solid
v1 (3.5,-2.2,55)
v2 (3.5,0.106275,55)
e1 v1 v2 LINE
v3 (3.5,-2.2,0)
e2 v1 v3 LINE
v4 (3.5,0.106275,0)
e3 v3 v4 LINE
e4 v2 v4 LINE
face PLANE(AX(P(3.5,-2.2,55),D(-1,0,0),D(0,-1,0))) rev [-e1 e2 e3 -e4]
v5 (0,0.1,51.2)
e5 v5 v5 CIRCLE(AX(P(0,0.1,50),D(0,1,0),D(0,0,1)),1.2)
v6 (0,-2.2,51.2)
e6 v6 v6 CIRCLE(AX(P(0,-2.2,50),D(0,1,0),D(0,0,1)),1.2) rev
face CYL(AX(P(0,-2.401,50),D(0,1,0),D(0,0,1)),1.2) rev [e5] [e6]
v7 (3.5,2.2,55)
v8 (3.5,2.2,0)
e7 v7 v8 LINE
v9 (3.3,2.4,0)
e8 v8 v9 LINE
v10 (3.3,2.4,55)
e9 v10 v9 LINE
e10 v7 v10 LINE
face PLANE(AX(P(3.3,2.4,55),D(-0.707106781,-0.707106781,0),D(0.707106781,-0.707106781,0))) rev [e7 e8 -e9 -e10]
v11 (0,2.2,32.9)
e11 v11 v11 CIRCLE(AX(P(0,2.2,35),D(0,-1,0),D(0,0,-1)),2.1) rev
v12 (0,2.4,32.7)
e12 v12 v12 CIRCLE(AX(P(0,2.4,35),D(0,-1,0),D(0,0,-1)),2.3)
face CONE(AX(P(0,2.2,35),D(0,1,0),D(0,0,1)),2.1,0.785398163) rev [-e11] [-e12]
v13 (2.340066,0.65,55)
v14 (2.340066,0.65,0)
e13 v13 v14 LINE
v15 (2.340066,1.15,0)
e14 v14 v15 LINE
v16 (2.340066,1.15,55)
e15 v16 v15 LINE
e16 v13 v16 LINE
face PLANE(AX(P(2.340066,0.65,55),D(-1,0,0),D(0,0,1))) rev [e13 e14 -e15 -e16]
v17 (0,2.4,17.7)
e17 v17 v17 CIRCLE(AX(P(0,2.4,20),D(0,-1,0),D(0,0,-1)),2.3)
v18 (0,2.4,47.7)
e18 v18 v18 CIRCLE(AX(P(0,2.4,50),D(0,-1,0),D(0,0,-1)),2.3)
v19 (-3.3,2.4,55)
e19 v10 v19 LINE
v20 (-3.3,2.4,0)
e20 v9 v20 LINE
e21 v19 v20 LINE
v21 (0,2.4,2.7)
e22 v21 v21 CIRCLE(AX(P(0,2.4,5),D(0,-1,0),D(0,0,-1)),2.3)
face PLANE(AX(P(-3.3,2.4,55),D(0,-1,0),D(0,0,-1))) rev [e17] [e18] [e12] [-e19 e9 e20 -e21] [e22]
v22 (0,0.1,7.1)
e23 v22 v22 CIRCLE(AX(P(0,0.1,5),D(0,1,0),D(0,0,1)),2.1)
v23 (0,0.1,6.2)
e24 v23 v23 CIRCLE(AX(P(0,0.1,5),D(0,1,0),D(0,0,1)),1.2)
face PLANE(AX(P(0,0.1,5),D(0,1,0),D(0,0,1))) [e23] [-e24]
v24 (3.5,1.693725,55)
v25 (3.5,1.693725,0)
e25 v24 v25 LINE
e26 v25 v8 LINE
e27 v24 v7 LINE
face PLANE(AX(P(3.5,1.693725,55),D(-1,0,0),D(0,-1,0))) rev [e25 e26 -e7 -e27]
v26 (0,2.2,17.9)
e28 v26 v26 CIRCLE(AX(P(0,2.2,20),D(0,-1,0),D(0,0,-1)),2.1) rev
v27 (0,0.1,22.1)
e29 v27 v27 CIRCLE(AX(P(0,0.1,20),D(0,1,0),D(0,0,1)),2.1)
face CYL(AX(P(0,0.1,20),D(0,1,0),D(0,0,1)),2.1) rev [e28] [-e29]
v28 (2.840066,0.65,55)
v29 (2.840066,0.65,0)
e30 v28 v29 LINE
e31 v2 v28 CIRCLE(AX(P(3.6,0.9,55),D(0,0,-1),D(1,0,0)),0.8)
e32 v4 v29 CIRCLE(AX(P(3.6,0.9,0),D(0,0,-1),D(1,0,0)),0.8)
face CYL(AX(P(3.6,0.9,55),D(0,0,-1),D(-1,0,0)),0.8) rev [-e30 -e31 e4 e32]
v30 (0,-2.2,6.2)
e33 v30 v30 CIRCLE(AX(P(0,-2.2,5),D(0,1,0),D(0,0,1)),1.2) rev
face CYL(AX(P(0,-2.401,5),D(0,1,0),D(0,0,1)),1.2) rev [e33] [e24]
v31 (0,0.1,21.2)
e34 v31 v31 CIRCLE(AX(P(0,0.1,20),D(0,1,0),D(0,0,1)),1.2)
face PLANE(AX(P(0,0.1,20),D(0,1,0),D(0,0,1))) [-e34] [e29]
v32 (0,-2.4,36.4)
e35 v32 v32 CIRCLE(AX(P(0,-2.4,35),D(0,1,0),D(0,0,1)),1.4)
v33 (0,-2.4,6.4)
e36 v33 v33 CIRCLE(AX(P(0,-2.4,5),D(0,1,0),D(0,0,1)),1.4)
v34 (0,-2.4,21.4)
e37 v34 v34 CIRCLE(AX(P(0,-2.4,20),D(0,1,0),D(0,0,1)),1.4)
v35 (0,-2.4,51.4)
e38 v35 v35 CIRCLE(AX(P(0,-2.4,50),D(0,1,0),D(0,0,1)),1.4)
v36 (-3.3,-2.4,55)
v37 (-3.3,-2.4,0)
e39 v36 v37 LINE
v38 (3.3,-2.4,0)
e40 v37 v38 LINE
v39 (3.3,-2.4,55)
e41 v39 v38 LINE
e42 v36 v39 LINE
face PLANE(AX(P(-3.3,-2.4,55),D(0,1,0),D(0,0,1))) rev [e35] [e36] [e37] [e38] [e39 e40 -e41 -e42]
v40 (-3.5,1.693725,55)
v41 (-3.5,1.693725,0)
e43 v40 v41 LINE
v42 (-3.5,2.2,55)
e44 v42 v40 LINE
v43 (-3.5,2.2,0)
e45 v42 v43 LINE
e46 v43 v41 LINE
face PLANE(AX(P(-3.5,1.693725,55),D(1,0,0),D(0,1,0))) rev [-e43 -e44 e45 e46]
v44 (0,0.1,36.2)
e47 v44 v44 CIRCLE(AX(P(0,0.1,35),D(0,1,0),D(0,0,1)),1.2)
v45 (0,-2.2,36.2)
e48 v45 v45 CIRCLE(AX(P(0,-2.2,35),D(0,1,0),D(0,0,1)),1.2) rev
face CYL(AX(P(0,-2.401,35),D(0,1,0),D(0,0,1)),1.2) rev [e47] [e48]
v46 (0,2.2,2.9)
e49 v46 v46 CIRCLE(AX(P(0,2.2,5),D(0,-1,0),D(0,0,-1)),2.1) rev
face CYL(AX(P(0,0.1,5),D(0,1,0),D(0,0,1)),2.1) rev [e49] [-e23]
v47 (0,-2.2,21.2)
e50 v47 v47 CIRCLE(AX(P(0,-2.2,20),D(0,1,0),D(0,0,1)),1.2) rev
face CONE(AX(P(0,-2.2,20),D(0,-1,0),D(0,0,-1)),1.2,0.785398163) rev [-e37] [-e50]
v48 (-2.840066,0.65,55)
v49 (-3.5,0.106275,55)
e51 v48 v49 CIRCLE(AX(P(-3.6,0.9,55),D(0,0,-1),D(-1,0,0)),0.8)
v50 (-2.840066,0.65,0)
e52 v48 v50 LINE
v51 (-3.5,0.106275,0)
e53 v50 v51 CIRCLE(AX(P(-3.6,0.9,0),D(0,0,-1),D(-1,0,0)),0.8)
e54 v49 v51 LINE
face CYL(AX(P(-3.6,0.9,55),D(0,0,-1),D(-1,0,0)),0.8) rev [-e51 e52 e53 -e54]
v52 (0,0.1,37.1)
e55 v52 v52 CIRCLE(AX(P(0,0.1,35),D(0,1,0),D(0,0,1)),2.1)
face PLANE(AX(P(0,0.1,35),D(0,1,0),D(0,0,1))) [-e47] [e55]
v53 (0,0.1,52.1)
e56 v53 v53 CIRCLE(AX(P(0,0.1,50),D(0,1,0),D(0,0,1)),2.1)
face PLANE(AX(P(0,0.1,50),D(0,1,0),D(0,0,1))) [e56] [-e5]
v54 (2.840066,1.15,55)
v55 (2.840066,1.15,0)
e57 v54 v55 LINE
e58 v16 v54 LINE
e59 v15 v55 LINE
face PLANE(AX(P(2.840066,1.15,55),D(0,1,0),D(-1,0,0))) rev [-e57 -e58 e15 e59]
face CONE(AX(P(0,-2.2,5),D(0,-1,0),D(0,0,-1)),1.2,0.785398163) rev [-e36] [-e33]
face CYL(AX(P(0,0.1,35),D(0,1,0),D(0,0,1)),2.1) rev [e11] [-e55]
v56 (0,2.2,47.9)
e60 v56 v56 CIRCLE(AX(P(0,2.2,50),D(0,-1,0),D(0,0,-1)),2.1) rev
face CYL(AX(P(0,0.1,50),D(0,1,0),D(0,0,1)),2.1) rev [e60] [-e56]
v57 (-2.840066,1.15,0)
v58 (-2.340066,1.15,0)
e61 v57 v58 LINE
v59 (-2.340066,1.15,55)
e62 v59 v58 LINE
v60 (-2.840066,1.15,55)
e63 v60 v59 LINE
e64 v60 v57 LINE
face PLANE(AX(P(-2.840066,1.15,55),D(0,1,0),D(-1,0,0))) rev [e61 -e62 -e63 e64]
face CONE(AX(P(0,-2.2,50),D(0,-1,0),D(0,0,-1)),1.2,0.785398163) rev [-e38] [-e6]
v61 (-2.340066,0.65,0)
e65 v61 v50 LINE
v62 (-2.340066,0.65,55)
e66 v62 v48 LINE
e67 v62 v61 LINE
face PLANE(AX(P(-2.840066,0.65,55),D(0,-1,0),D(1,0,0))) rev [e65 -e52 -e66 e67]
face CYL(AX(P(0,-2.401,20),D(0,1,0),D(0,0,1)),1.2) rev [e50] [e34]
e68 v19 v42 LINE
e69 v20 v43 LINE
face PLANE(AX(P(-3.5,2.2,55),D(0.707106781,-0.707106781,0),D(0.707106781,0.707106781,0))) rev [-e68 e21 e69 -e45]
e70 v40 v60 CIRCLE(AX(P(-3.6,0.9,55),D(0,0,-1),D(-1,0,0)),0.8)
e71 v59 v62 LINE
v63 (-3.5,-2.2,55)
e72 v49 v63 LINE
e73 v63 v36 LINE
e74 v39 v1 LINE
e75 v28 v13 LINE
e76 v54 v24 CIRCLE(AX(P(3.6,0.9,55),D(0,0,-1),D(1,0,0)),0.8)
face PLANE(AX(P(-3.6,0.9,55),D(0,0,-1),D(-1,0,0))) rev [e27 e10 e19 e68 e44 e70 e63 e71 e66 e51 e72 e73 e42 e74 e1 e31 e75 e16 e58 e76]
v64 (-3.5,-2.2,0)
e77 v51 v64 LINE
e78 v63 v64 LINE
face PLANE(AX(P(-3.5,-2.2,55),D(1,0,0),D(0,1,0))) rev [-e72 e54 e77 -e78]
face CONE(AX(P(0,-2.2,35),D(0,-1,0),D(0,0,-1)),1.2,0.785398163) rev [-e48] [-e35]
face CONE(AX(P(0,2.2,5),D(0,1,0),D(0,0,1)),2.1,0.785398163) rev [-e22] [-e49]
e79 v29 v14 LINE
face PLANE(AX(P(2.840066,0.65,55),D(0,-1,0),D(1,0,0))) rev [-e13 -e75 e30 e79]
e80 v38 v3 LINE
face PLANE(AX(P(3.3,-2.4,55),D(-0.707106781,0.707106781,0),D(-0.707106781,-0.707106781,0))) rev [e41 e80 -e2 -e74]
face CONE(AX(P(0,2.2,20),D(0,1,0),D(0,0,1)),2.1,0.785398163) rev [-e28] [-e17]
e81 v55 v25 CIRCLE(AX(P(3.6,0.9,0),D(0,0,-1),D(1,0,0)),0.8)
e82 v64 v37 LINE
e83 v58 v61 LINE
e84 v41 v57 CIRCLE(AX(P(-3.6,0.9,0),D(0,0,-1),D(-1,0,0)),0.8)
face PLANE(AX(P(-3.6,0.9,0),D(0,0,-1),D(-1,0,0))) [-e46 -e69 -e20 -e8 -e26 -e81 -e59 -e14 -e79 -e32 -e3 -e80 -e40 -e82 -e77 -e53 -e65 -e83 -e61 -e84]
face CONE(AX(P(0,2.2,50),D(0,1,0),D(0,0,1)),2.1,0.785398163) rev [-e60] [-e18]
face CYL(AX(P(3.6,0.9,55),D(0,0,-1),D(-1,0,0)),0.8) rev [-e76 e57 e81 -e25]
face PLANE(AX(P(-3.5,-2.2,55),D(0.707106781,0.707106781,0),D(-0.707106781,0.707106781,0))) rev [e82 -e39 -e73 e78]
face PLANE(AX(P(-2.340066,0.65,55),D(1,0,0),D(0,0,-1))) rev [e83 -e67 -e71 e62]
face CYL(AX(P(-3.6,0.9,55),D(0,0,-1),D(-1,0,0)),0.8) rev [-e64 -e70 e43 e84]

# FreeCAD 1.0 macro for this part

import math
import FreeCAD as App
import Part
import Sketcher

V = App.Vector


def edges_at(feature, points):
    """Names of the edges that pass closest to the given points."""
    edges = feature.Shape.Edges
    near = lambda p: min(range(len(edges)), key=lambda i: edges[i].distToShape(Part.Vertex(*p))[0])
    return sorted({f"Edge{near(p) + 1}" for p in points})

doc = App.newDocument("Part")
body = doc.addObject("PartDesign::Body", "Body")

sketch1 = doc.addObject("Sketcher::SketchObject", "Sketch")
body.addObject(sketch1)
sketch1.AttachmentSupport = (doc.XY_Plane, [""])
sketch1.MapMode = "FlatFace"
sketch1.addGeometry([
    Part.LineSegment(V(-3.3, -2.4, 0), V(3.3, -2.4, 0)),
    Part.LineSegment(V(3.3, -2.4, 0), V(3.5, -2.2, 0)),
    Part.LineSegment(V(3.5, -2.2, 0), V(3.5, 0.11, 0)),
    Part.ArcOfCircle(Part.Circle(V(3.6, 0.9, 0), V(0, 0, 1), 0.8), math.radians(-162), math.radians(-97)),
    Part.LineSegment(V(2.84, 0.65, 0), V(2.34, 0.65, 0)),
    Part.LineSegment(V(2.34, 0.65, 0), V(2.34, 1.15, 0)),
    Part.LineSegment(V(2.34, 1.15, 0), V(2.84, 1.15, 0)),
    Part.ArcOfCircle(Part.Circle(V(3.6, 0.9, 0), V(0, 0, 1), 0.8), math.radians(97), math.radians(162)),
    Part.LineSegment(V(3.5, 1.69, 0), V(3.5, 2.2, 0)),
    Part.LineSegment(V(3.5, 2.2, 0), V(3.3, 2.4, 0)),
    Part.LineSegment(V(3.3, 2.4, 0), V(-3.3, 2.4, 0)),
    Part.LineSegment(V(-3.3, 2.4, 0), V(-3.5, 2.2, 0)),
    Part.LineSegment(V(-3.5, 2.2, 0), V(-3.5, 1.69, 0)),
    Part.ArcOfCircle(Part.Circle(V(-3.6, 0.9, 0), V(0, 0, 1), 0.8), math.radians(18), math.radians(83)),
    Part.LineSegment(V(-2.84, 1.15, 0), V(-2.34, 1.15, 0)),
    Part.LineSegment(V(-2.34, 1.15, 0), V(-2.34, 0.65, 0)),
    Part.LineSegment(V(-2.34, 0.65, 0), V(-2.84, 0.65, 0)),
    Part.ArcOfCircle(Part.Circle(V(-3.6, 0.9, 0), V(0, 0, 1), 0.8), math.radians(-83), math.radians(-18)),
    Part.LineSegment(V(-3.5, 0.11, 0), V(-3.5, -2.2, 0)),
    Part.LineSegment(V(-3.5, -2.2, 0), V(-3.3, -2.4, 0)),
], False)
sketch1.addConstraint([
    Sketcher.Constraint("Coincident", 0, 2, 1, 1),
    Sketcher.Constraint("Coincident", 1, 2, 2, 1),
    Sketcher.Constraint("Coincident", 2, 2, 3, 2),
    Sketcher.Constraint("Coincident", 3, 1, 4, 1),
    Sketcher.Constraint("Coincident", 4, 2, 5, 1),
    Sketcher.Constraint("Coincident", 5, 2, 6, 1),
    Sketcher.Constraint("Coincident", 6, 2, 7, 2),
    Sketcher.Constraint("Coincident", 7, 1, 8, 1),
    Sketcher.Constraint("Coincident", 8, 2, 9, 1),
    Sketcher.Constraint("Coincident", 9, 2, 10, 1),
    Sketcher.Constraint("Coincident", 10, 2, 11, 1),
    Sketcher.Constraint("Coincident", 11, 2, 12, 1),
    Sketcher.Constraint("Coincident", 12, 2, 13, 2),
    Sketcher.Constraint("Coincident", 13, 1, 14, 1),
    Sketcher.Constraint("Coincident", 14, 2, 15, 1),
    Sketcher.Constraint("Coincident", 15, 2, 16, 1),
    Sketcher.Constraint("Coincident", 16, 2, 17, 2),
    Sketcher.Constraint("Coincident", 17, 1, 18, 1),
    Sketcher.Constraint("Coincident", 18, 2, 19, 1),
    Sketcher.Constraint("Coincident", 19, 2, 0, 1),
    Sketcher.Constraint("Horizontal", 0),
    Sketcher.Constraint("Vertical", 2),
    Sketcher.Constraint("Horizontal", 4),
    Sketcher.Constraint("Vertical", 5),
    Sketcher.Constraint("Horizontal", 6),
    Sketcher.Constraint("Vertical", 8),
    Sketcher.Constraint("Horizontal", 10),
    Sketcher.Constraint("Vertical", 12),
    Sketcher.Constraint("Horizontal", 14),
    Sketcher.Constraint("Vertical", 15),
    Sketcher.Constraint("Horizontal", 16),
    Sketcher.Constraint("Vertical", 18),
    Sketcher.Constraint("Coincident", 7, 3, 3, 3),
    Sketcher.Constraint("Coincident", 17, 3, 13, 3),
    Sketcher.Constraint("Equal", 3, 7),
    Sketcher.Constraint("Equal", 7, 13),
    Sketcher.Constraint("Equal", 13, 17),
    Sketcher.Constraint("Symmetric", 0, 2, 10, 2, -1, 1),
    Sketcher.Constraint("Symmetric", 1, 2, 11, 2, -1, 1),
    Sketcher.Constraint("Symmetric", 8, 2, 18, 2, -1, 1),
    Sketcher.Constraint("Symmetric", 3, 3, 13, 3, -2),
    Sketcher.Constraint("Symmetric", 8, 2, 11, 2, -2),
    Sketcher.Constraint("Symmetric", 5, 2, 14, 2, -2),
    Sketcher.Constraint("Perpendicular", 1, 9),
    Sketcher.Constraint("Perpendicular", 11, 19),
    Sketcher.Constraint("Horizontal", 4, 2, 15, 2),
    Sketcher.Constraint("Vertical", 3, 1, 6, 2),
    Sketcher.Constraint("Vertical", 0, 2, 9, 2),
    Sketcher.Constraint("Equal", 16, 5),
    Sketcher.Constraint("Radius", 3, 0.8),
    Sketcher.Constraint("DistanceX", 0, 1, 0, 2, 6.6),
    Sketcher.Constraint("DistanceX", 4, 2, 4, 1, 0.5),
    Sketcher.Constraint("DistanceX", -1, 1, 3, 3, 3.6),
    Sketcher.Constraint("DistanceY", -1, 1, 3, 3, 0.9),
    Sketcher.Constraint("DistanceY", 0, 2, -1, 1, 2.4),
    Sketcher.Constraint("DistanceX", -1, 1, 1, 2, 3.5),
])
pad1 = doc.addObject("PartDesign::Pad", "Pad")
body.addObject(pad1)
pad1.Profile = sketch1
pad1.Length = 55

sketch2 = doc.addObject("Sketcher::SketchObject", "Sketch001")
body.addObject(sketch2)
sketch2.AttachmentSupport = (doc.XZ_Plane, [""])
sketch2.MapMode = "FlatFace"
sketch2.AttachmentOffset = App.Placement(V(0, 0, -2.4), App.Rotation())
sketch2.addGeometry(Part.Circle(V(0, 5, 0), V(0, 0, 1), 1.2), False)
sketch2.addConstraint([
    Sketcher.Constraint("PointOnObject", 0, 3, -2),
    Sketcher.Constraint("Diameter", 0, 2.4),
    Sketcher.Constraint("DistanceY", -1, 1, 0, 3, 5.0),
])
pocket1 = doc.addObject("PartDesign::Pocket", "Pocket")
body.addObject(pocket1)
pocket1.Profile = sketch2
pocket1.Length = 4.8
pocket1.Reversed = True

sketch3 = doc.addObject("Sketcher::SketchObject", "Sketch002")
body.addObject(sketch3)
sketch3.AttachmentSupport = (doc.XZ_Plane, [""])
sketch3.MapMode = "FlatFace"
sketch3.AttachmentOffset = App.Placement(V(0, 0, -2.4), App.Rotation())
sketch3.addGeometry([
    Part.Circle(V(0, 5, 0), V(0, 0, 1), 2.1),
    Part.Circle(V(0, 5, 0), V(0, 0, 1), 1.2),
], False)
sketch3.addConstraint([
    Sketcher.Constraint("Coincident", 1, 3, 0, 3),
    Sketcher.Constraint("PointOnObject", 0, 3, -2),
    Sketcher.Constraint("Diameter", 0, 4.2),
    Sketcher.Constraint("Diameter", 1, 2.4),
    Sketcher.Constraint("DistanceY", -1, 1, 0, 3, 5.0),
])
pocket2 = doc.addObject("PartDesign::Pocket", "Pocket001")
body.addObject(pocket2)
pocket2.Profile = sketch3
pocket2.Length = 2.3
pocket2.Reversed = True
doc.recompute()

chamfer = doc.addObject("PartDesign::Chamfer", "Chamfer")
body.addObject(chamfer)
chamfer.Base = (pocket2, edges_at(pocket2, [(-1.2, -2.4, 5), (-2.1, 2.4, 5)]))
chamfer.Size = 0.2
doc.recompute()

linearpattern = doc.addObject("PartDesign::LinearPattern", "LinearPattern")
body.addObject(linearpattern)
linearpattern.Originals = [pocket1, pocket2]
linearpattern.Direction = (doc.Z_Axis, [""])
linearpattern.Mode = "offset"
linearpattern.Offset = 15
linearpattern.Occurrences = 4
body.Tip = linearpattern
doc.recompute()

chamfer2 = doc.addObject("PartDesign::Chamfer", "Chamfer001")
body.addObject(chamfer2)
chamfer2.Base = (linearpattern, edges_at(linearpattern, [
    (-1.2, -2.4, 20),
    (-2.1, 2.4, 20),
    (-1.2, -2.4, 35),
    (-2.1, 2.4, 35),
    (-1.2, -2.4, 50),
    (-2.1, 2.4, 50),
]))
chamfer2.Size = 0.2

doc.recompute()
